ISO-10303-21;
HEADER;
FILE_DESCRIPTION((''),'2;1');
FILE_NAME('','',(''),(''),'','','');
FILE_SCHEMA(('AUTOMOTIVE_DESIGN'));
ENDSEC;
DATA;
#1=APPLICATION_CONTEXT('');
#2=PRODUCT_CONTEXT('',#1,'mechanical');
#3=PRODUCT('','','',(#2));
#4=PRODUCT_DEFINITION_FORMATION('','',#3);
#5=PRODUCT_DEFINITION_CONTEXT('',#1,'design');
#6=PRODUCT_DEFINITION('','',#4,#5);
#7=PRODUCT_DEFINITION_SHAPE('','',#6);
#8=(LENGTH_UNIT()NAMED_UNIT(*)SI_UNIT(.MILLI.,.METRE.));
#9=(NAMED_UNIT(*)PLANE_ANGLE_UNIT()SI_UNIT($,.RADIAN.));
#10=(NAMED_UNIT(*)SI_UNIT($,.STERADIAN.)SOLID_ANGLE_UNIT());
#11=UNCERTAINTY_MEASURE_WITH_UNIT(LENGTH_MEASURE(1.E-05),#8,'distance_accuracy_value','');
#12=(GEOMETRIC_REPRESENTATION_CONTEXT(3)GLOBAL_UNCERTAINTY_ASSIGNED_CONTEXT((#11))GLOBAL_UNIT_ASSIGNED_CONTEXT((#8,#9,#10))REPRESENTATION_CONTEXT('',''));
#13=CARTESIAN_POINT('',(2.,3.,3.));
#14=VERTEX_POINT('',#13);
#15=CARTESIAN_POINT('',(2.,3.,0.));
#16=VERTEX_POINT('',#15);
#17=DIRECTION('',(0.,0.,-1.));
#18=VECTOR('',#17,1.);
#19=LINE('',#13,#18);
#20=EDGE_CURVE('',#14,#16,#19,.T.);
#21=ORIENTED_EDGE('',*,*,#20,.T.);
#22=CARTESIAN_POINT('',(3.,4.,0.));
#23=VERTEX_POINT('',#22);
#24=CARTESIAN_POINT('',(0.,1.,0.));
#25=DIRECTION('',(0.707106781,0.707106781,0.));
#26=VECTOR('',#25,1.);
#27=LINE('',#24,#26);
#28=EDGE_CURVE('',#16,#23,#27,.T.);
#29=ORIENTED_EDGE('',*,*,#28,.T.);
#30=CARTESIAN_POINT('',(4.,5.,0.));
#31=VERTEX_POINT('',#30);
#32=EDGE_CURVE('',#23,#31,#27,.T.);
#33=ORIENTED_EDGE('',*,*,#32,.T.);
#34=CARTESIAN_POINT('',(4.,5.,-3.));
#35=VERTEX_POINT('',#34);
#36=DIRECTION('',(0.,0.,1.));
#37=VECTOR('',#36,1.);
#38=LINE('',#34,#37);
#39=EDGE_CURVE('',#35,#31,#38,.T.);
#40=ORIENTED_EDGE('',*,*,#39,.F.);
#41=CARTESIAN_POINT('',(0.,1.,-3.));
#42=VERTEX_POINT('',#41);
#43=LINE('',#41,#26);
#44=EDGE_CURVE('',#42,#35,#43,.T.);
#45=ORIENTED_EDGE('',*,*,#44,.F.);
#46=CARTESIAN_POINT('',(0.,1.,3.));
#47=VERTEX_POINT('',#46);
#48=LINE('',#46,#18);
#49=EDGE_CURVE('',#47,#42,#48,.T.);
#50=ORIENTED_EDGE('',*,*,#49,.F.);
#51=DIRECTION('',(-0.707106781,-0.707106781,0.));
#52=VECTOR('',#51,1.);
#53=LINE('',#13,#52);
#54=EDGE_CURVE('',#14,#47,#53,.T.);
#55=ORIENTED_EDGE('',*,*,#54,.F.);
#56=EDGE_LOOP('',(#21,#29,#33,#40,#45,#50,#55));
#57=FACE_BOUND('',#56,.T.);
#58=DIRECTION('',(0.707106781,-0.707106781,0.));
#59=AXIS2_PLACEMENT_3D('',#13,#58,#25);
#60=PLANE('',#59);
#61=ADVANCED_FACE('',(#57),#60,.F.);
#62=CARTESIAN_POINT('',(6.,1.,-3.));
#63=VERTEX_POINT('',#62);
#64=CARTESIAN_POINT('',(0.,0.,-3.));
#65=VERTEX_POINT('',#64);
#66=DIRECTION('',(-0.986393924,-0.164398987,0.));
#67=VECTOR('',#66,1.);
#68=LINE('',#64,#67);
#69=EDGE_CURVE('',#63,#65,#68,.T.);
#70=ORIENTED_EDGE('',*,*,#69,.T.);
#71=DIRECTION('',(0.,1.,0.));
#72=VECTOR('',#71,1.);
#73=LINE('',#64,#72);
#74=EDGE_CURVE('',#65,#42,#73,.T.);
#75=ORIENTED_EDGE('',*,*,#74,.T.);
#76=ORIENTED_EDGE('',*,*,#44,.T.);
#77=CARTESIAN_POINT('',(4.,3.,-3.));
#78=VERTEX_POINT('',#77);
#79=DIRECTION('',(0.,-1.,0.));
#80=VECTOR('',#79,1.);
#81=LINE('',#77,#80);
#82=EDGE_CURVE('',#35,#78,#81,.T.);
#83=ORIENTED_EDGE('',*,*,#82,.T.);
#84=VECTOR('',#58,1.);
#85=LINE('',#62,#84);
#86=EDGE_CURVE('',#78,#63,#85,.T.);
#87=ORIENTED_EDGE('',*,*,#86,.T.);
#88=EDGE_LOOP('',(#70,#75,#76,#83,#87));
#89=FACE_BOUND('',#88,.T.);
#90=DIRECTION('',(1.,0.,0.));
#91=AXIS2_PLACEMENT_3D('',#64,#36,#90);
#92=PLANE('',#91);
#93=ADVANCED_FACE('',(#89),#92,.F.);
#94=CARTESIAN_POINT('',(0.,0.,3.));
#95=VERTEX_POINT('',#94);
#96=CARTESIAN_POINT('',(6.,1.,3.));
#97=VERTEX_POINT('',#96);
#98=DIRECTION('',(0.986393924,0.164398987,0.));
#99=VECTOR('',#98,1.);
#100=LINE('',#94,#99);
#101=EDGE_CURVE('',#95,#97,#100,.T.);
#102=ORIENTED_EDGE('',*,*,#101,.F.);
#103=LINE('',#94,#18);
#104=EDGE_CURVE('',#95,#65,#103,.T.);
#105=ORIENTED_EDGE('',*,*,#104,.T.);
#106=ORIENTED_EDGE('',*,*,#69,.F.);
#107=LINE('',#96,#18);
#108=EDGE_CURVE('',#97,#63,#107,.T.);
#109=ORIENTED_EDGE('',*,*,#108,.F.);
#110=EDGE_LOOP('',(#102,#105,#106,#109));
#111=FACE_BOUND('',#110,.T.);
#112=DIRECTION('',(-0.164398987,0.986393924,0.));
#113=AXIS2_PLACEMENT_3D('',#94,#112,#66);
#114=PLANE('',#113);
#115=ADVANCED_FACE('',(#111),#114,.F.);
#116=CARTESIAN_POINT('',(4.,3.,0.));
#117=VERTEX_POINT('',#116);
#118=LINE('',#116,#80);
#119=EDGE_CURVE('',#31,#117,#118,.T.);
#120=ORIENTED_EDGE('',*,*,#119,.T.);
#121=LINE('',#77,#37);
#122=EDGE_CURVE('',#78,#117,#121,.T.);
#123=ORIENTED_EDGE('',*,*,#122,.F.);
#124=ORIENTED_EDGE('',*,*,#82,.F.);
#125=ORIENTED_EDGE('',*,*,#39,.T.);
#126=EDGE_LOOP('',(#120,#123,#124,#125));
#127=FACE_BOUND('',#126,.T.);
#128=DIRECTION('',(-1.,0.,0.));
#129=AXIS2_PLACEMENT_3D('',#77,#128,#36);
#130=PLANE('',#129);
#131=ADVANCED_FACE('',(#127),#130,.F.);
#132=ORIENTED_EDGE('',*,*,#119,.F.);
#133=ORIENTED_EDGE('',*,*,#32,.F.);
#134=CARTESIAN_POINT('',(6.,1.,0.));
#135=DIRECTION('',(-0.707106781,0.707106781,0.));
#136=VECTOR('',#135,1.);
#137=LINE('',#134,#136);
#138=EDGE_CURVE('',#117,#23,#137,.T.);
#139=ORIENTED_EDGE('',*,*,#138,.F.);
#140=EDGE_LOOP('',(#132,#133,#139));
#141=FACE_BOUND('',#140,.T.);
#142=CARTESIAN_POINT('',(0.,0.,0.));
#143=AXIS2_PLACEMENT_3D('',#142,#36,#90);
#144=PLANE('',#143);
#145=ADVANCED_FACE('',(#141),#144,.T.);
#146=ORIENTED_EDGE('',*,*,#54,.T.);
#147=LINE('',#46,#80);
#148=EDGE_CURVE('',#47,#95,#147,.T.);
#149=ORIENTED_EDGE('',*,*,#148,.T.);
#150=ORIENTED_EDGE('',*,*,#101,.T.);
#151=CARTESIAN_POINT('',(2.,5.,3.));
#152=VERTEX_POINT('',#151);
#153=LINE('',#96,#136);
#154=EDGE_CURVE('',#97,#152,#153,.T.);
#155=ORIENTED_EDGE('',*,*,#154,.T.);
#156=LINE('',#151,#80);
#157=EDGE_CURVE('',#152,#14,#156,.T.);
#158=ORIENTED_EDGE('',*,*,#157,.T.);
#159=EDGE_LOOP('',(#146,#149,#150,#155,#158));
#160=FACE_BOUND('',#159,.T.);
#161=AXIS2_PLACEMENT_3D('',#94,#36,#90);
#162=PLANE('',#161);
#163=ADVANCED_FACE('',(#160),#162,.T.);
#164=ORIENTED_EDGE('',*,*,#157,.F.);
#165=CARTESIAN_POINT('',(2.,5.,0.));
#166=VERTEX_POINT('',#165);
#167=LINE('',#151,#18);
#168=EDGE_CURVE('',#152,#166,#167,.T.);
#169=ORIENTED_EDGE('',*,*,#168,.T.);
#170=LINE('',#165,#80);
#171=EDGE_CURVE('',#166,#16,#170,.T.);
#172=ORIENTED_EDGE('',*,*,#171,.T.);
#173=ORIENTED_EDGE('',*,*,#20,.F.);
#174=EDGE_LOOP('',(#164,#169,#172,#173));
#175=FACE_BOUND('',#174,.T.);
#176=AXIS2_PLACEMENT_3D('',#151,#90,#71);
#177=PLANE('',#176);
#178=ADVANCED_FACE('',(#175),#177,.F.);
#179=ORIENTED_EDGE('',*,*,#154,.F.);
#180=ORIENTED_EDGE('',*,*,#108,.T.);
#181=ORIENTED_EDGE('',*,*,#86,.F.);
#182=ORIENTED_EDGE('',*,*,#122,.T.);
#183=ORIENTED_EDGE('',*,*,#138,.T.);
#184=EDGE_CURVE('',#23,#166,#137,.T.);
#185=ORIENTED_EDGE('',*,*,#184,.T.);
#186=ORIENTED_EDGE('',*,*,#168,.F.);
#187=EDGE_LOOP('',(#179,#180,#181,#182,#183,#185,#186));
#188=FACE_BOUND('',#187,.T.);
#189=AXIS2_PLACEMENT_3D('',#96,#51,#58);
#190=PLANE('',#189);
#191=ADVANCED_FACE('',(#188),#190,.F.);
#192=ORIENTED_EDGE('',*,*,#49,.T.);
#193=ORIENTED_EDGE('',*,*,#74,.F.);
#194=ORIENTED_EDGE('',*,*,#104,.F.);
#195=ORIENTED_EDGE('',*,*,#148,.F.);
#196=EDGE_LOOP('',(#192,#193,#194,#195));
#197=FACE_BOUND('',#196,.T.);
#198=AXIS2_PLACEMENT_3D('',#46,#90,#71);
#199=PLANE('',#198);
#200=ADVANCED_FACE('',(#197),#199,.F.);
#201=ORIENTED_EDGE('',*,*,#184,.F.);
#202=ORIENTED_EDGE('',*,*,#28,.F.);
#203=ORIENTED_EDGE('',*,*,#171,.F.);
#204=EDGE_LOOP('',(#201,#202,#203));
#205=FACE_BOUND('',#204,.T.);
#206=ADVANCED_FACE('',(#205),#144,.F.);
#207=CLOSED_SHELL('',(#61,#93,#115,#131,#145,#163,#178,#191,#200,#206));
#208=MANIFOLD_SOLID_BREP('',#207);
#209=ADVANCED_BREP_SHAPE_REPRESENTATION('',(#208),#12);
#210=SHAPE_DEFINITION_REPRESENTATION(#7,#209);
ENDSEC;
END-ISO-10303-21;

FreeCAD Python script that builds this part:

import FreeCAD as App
import Part
import Sketcher

V = App.Vector
Q = App.Units.Quantity


def add_polygon(sketch, points):
    """Adds a closed chain of lines whose ends are joined by coincident constraints."""
    first, n = sketch.GeometryCount, len(points)
    for a, b in zip(points, points[1:] + points[:1]):
        sketch.addGeometry(Part.LineSegment(App.Vector(*a, 0), App.Vector(*b, 0)), False)
    for i in range(n):
        sketch.addConstraint(Sketcher.Constraint("Coincident", first + i, 2, first + (i + 1) % n, 1))

doc = App.newDocument("Part")
body = doc.addObject("PartDesign::Body", "Body")

sketch1 = body.newObject("Sketcher::SketchObject", "Sketch")
sketch1.AttachmentSupport = (doc.getObject("XY_Plane"), [""])
sketch1.MapMode = "FlatFace"
add_polygon(sketch1, [(0, 0), (6, 1), (2, 5), (2, 3), (0, 1)])
sketch1.addConstraint([
    Sketcher.Constraint("Vertical", 2),
    Sketcher.Constraint("Vertical", 4),
    Sketcher.Constraint("Coincident", 4, 2, -1, 1),
    Sketcher.Constraint("Perpendicular", 1, 3),
    Sketcher.Constraint("Horizontal", 0, 2, 3, 2),
    Sketcher.Constraint("DistanceY", 2, 2, 2, 1, 2.0),
    Sketcher.Constraint("DistanceY", 4, 2, 4, 1, 1.0),
    Sketcher.Constraint("Angle", 1, Q("135 deg")),
    Sketcher.Constraint("DistanceX", -1, 1, 0, 2, 6.0),
])
pad1 = body.newObject("PartDesign::Pad", "Pad")
pad1.Profile = sketch1
pad1.Length = 3

sketch2 = body.newObject("Sketcher::SketchObject", "Sketch001")
sketch2.AttachmentSupport = (doc.getObject("XY_Plane"), [""])
sketch2.MapMode = "FlatFace"
add_polygon(sketch2, [(0, 0), (0, 1), (4, 5), (4, 3), (6, 1)])
sketch2.addConstraint([
    Sketcher.Constraint("Vertical", 0),
    Sketcher.Constraint("Vertical", 2),
    Sketcher.Constraint("Coincident", 4, 2, -1, 1),
    Sketcher.Constraint("Perpendicular", 1, 3),
    Sketcher.Constraint("Horizontal", 0, 2, 3, 2),
    Sketcher.Constraint("DistanceY", 0, 1, 0, 2, 1.0),
    Sketcher.Constraint("DistanceY", 2, 2, 2, 1, 2.0),
    Sketcher.Constraint("Angle", 1, Q("45 deg")),
    Sketcher.Constraint("DistanceX", -1, 1, 1, 2, 4.0),
])
pad2 = body.newObject("PartDesign::Pad", "Pad001")
pad2.Profile = sketch2
pad2.Length = 3
pad2.Reversed = True

doc.recompute()
